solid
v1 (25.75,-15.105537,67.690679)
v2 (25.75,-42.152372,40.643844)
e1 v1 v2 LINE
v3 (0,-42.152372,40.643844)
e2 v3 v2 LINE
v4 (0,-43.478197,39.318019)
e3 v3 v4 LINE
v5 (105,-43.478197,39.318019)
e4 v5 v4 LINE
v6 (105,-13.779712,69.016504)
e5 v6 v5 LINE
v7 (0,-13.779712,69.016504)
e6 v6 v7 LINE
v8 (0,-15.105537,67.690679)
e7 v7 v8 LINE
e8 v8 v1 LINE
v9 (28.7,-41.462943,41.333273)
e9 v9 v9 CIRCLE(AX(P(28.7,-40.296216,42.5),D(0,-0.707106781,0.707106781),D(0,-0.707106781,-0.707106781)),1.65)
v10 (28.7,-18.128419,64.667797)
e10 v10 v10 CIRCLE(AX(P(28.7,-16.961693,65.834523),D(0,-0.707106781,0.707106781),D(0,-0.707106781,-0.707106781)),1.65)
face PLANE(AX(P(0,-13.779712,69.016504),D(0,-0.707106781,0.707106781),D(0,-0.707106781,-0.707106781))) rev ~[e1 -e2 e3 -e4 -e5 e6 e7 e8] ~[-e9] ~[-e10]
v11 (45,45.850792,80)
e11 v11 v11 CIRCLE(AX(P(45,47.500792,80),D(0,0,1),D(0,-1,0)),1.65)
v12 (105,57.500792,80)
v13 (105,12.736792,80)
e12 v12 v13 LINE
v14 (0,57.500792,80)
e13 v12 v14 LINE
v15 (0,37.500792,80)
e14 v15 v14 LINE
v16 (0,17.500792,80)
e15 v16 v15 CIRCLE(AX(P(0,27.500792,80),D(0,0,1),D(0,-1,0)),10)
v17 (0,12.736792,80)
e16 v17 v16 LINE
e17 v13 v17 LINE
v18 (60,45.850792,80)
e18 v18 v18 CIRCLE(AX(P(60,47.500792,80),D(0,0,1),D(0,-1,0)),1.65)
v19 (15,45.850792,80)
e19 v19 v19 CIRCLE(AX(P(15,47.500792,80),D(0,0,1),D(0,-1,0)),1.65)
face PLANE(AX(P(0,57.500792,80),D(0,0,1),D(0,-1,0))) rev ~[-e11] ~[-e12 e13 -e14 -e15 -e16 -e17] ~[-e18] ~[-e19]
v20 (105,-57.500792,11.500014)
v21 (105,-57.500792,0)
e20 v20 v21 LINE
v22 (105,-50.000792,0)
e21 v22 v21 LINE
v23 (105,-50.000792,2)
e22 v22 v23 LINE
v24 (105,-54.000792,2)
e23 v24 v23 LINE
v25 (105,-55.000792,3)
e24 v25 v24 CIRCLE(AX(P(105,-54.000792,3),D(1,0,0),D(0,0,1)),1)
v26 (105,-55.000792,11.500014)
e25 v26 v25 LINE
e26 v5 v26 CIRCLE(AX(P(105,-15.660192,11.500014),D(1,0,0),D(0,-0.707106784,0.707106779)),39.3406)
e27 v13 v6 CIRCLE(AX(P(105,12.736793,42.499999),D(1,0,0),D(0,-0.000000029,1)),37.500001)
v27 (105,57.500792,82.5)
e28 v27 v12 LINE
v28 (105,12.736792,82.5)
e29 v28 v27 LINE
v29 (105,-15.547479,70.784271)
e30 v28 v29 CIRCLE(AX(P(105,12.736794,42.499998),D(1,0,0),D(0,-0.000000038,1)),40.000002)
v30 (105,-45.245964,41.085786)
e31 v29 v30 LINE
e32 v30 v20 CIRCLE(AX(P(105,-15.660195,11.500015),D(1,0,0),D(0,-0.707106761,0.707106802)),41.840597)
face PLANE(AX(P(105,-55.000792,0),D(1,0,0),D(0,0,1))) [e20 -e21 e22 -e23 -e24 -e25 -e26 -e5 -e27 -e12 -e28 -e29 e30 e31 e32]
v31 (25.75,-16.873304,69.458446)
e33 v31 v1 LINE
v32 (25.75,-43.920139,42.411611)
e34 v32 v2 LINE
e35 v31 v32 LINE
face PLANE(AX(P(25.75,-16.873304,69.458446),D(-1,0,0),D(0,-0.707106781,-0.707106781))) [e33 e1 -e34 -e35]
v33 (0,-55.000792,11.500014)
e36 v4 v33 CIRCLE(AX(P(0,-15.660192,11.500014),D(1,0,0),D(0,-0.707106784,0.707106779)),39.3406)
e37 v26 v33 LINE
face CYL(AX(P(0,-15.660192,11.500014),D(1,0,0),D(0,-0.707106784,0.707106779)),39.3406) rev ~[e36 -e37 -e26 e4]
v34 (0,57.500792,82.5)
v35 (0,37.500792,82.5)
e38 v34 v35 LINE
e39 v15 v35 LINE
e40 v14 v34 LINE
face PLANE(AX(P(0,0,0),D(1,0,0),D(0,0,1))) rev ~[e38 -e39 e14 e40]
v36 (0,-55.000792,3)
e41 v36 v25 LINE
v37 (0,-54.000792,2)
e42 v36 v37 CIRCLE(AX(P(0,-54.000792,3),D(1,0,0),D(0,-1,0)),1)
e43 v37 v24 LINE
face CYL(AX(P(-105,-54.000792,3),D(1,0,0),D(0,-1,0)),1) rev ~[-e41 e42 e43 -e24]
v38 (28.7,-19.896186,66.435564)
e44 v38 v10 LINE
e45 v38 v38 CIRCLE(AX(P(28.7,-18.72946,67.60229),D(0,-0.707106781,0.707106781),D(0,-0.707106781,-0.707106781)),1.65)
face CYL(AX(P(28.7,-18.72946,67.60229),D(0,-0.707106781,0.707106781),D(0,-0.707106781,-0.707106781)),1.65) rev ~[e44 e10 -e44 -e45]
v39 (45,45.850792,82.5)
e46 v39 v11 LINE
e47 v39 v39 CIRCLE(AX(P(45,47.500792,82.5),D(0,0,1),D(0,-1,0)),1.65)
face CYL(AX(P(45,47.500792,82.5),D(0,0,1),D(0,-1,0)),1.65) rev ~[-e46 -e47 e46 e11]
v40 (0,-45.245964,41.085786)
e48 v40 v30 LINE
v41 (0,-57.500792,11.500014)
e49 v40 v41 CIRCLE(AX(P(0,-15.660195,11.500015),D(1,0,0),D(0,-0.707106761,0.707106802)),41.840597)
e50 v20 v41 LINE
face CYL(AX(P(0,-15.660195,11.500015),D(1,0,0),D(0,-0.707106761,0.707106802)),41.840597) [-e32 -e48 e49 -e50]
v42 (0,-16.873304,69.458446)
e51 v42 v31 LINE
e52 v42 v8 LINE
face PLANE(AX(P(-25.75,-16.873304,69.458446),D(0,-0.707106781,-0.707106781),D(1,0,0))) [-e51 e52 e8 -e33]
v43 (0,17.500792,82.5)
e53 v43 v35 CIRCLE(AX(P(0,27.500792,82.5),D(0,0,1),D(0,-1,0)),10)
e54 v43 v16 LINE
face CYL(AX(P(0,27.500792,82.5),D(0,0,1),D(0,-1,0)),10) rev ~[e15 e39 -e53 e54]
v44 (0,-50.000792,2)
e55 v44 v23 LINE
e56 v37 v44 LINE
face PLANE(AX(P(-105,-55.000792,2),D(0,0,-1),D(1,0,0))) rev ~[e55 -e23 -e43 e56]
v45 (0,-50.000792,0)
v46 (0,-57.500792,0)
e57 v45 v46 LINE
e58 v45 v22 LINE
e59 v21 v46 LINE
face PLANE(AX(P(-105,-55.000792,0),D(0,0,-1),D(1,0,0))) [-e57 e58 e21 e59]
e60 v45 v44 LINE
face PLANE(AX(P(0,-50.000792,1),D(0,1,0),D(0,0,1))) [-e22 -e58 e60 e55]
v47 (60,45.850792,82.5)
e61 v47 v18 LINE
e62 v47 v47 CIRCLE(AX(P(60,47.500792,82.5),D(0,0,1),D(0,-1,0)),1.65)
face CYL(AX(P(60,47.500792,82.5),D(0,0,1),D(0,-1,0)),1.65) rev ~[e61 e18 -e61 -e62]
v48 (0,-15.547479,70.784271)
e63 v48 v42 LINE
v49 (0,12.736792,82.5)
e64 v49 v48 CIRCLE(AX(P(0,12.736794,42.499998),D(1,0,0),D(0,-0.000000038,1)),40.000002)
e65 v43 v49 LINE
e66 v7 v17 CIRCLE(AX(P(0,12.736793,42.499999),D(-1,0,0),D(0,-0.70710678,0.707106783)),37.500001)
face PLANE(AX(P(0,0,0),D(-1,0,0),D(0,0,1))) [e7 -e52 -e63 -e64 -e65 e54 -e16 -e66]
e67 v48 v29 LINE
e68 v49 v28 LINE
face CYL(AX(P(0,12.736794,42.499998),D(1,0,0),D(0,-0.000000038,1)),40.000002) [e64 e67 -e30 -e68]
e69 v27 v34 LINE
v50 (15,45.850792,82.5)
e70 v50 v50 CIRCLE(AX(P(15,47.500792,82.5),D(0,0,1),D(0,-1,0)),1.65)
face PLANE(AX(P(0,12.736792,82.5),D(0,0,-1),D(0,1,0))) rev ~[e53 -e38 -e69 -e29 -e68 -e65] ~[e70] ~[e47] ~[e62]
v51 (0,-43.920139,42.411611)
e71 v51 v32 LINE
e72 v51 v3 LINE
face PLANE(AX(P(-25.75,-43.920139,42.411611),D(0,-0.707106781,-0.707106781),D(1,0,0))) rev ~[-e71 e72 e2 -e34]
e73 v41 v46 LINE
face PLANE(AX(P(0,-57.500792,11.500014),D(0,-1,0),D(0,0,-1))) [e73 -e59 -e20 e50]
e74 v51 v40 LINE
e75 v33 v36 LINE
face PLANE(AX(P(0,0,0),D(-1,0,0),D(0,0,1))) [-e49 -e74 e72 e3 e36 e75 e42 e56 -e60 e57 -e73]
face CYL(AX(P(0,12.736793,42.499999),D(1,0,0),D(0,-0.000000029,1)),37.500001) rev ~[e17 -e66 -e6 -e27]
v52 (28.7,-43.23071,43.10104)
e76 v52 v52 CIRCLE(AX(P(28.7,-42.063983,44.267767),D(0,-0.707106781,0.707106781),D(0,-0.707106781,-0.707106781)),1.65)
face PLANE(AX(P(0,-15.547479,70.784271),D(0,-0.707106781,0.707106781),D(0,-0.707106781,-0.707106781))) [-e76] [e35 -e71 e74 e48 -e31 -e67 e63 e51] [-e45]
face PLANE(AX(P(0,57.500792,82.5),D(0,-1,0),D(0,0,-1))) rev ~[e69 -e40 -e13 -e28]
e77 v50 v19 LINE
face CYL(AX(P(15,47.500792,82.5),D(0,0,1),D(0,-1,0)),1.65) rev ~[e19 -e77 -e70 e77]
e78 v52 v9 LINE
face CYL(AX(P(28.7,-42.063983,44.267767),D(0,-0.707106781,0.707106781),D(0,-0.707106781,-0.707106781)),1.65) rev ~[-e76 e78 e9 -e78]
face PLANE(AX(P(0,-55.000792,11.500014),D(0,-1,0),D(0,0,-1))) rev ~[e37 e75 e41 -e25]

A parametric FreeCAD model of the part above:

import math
import FreeCAD as App
import Part
import Sketcher
from FreeCAD import Vector
Q = App.Units.Quantity


def edges_at(feature, points):
    """Names of the edges that pass closest to the given points."""
    edges = feature.Shape.Edges
    near = lambda p: min(range(len(edges)), key=lambda i: edges[i].distToShape(Part.Vertex(*p))[0])
    return sorted({f"Edge{near(p) + 1}" for p in points})

doc = App.newDocument("Part")
body = doc.addObject("PartDesign::Body", "Body")

sketch1 = body.newObject("Sketcher::SketchObject", "Sketch")
sketch1.AttachmentSupport = (doc.getObject("YZ_Plane"), [""])
sketch1.MapMode = "FlatFace"
sketch1.addGeometry(Part.LineSegment(Vector(57.5, 82.5, 0), Vector(12.7, 82.5, 0)), False)
sketch1.addGeometry(Part.ArcOfCircle(Part.Circle(Vector(12.7, 42.5, 0), Vector(0, 0, 1), 40), math.radians(90), math.radians(135)), False)
sketch1.addGeometry(Part.LineSegment(Vector(-15.5, 70.8, 0), Vector(-45.2, 41.1, 0)), False)
sketch1.addGeometry(Part.ArcOfCircle(Part.Circle(Vector(-15.7, 11.5, 0), Vector(0, 0, 1), 41.8), math.radians(135), math.radians(180)), False)
sketch1.addGeometry(Part.LineSegment(Vector(-57.5, 11.5, 0), Vector(-57.5, 0, 0)), False)
sketch1.addGeometry(Part.LineSegment(Vector(-57.5, 0, 0), Vector(-55, 0, 0)), False)
sketch1.addGeometry(Part.LineSegment(Vector(-55, 0, 0), Vector(-55, 11.5, 0)), False)
sketch1.addGeometry(Part.ArcOfCircle(Part.Circle(Vector(-15.7, 11.5, 0), Vector(0, 0, 1), 39.3), math.radians(135), math.radians(180)), False)
sketch1.addGeometry(Part.LineSegment(Vector(-43.5, 39.3, 0), Vector(-13.8, 69, 0)), False)
sketch1.addGeometry(Part.ArcOfCircle(Part.Circle(Vector(12.7, 42.5, 0), Vector(0, 0, 1), 37.5), math.radians(90), math.radians(135)), False)
sketch1.addGeometry(Part.LineSegment(Vector(12.7, 80, 0), Vector(57.5, 80, 0)), False)
sketch1.addGeometry(Part.LineSegment(Vector(57.5, 80, 0), Vector(57.5, 82.5, 0)), False)
sketch1.addConstraint(Sketcher.Constraint("Tangent", 0, 2, 1, 1))
sketch1.addConstraint(Sketcher.Constraint("Tangent", 1, 2, 2, 1))
sketch1.addConstraint(Sketcher.Constraint("Tangent", 2, 2, 3, 1))
sketch1.addConstraint(Sketcher.Constraint("Tangent", 3, 2, 4, 1))
sketch1.addConstraint(Sketcher.Constraint("Coincident", 4, 2, 5, 1))
sketch1.addConstraint(Sketcher.Constraint("Coincident", 5, 2, 6, 1))
sketch1.addConstraint(Sketcher.Constraint("Tangent", 6, 2, 7, 2))
sketch1.addConstraint(Sketcher.Constraint("Tangent", 7, 1, 8, 1))
sketch1.addConstraint(Sketcher.Constraint("Tangent", 8, 2, 9, 2))
sketch1.addConstraint(Sketcher.Constraint("Tangent", 9, 1, 10, 1))
sketch1.addConstraint(Sketcher.Constraint("Coincident", 10, 2, 11, 1))
sketch1.addConstraint(Sketcher.Constraint("Coincident", 11, 2, 0, 1))
sketch1.addConstraint(Sketcher.Constraint("Horizontal", 0))
sketch1.addConstraint(Sketcher.Constraint("Vertical", 4))
sketch1.addConstraint(Sketcher.Constraint("Horizontal", 5))
sketch1.addConstraint(Sketcher.Constraint("Vertical", 6))
sketch1.addConstraint(Sketcher.Constraint("Horizontal", 10))
sketch1.addConstraint(Sketcher.Constraint("Vertical", 11))
sketch1.addConstraint(Sketcher.Constraint("Coincident", 7, 3, 3, 3))
sketch1.addConstraint(Sketcher.Constraint("Coincident", 9, 3, 1, 3))
sketch1.addConstraint(Sketcher.Constraint("PointOnObject", 4, 2, -1))
sketch1.addConstraint(Sketcher.Constraint("Parallel", 2, 8))
sketch1.addConstraint(Sketcher.Constraint("Radius", 9, 37.500001))
sketch1.addConstraint(Sketcher.Constraint("Angle", 2, Q("-135 deg")))
sketch1.addConstraint(Sketcher.Constraint("Distance", 2, 42.0))
sketch1.addConstraint(Sketcher.Constraint("DistanceX", 5, 1, 5, 2, 2.5))
sketch1.addConstraint(Sketcher.Constraint("DistanceY", -1, 1, 9, 1, 80.0))
sketch1.addConstraint(Sketcher.Constraint("Radius", 7, 39.3406))
sketch1.addConstraint(Sketcher.Constraint("DistanceX", 0, 2, 0, 1, 44.764))
sketch1.addConstraint(Sketcher.Constraint("DistanceX", 7, 3, -1, 1, 15.660192))
pad1 = body.newObject("PartDesign::Pad", "Pad")
pad1.Profile = sketch1
pad1.Type = "TwoLengths"
pad1.Length = 105
pad1.Length2 = 105

sketch2 = body.newObject("Sketcher::SketchObject", "Sketch001")
sketch2.Placement = App.Placement(Vector(0, -43.165875, 43.165875), App.Rotation(Vector(0, -0.707106781, -0.707106781), Vector(0.999999999, 0, 0), Vector(0, -0.707106781, 0.707106781), "ZXY"))
sketch2.addGeometry(Part.Circle(Vector(-34.6, 28.7, 0), Vector(0, 0, 1), 1.6), False)
sketch2.addGeometry(Part.Circle(Vector(-1.6, 28.7, 0), Vector(0, 0, 1), 1.6), False)
sketch2.addGeometry(Part.Circle(Vector(-34.6, -28.7, 0), Vector(0, 0, 1), 1.6), False)
sketch2.addGeometry(Part.Circle(Vector(-1.6, -28.7, 0), Vector(0, 0, 1), 1.6), False)
sketch2.addGeometry(Part.LineSegment(Vector(-37.2, 25.7, 0), Vector(-37.2, -25.7, 0)), False)
sketch2.addGeometry(Part.LineSegment(Vector(-37.2, -25.7, 0), Vector(1.1, -25.7, 0)), False)
sketch2.addGeometry(Part.LineSegment(Vector(1.1, -25.7, 0), Vector(1.1, 25.7, 0)), False)
sketch2.addGeometry(Part.LineSegment(Vector(1.1, 25.7, 0), Vector(-37.2, 25.7, 0)), False)
sketch2.addConstraint(Sketcher.Constraint("Coincident", 4, 2, 5, 1))
sketch2.addConstraint(Sketcher.Constraint("Coincident", 5, 2, 6, 1))
sketch2.addConstraint(Sketcher.Constraint("Coincident", 6, 2, 7, 1))
sketch2.addConstraint(Sketcher.Constraint("Coincident", 7, 2, 4, 1))
sketch2.addConstraint(Sketcher.Constraint("Vertical", 4))
sketch2.addConstraint(Sketcher.Constraint("Horizontal", 5))
sketch2.addConstraint(Sketcher.Constraint("Vertical", 6))
sketch2.addConstraint(Sketcher.Constraint("Horizontal", 7))
sketch2.addConstraint(Sketcher.Constraint("Equal", 0, 1))
sketch2.addConstraint(Sketcher.Constraint("Equal", 1, 2))
sketch2.addConstraint(Sketcher.Constraint("Equal", 2, 3))
sketch2.addConstraint(Sketcher.Constraint("Symmetric", 0, 3, 2, 3, -1))
sketch2.addConstraint(Sketcher.Constraint("Symmetric", 1, 3, 3, 3, -1))
sketch2.addConstraint(Sketcher.Constraint("Horizontal", 0, 3, 1, 3))
sketch2.addConstraint(Sketcher.Constraint("Diameter", 0, 3.3))
sketch2.addConstraint(Sketcher.Constraint("DistanceY", 4, 2, 4, 1, 51.5))
sketch2.addConstraint(Sketcher.Constraint("DistanceX", 0, 3, 1, 3, 33.0))
sketch2.addConstraint(Sketcher.Constraint("DistanceX", 5, 1, 5, 2, 38.25))
sketch2.addConstraint(Sketcher.Constraint("DistanceY", -1, 1, 0, 3, 28.7))
sketch2.addConstraint(Sketcher.Constraint("DistanceY", 4, 2, -1, 1, 25.75))
sketch2.addConstraint(Sketcher.Constraint("DistanceX", 4, 2, 2, 3, 2.625))
sketch2.addConstraint(Sketcher.Constraint("DistanceX", 0, 3, -1, 1, 34.55831))
pocket1 = body.newObject("PartDesign::Pocket", "Pocket")
pocket1.Profile = sketch2
pocket1.Type = "ThroughAll"

sketch3 = body.newObject("Sketcher::SketchObject", "Sketch002")
sketch3.AttachmentSupport = (doc.getObject("XY_Plane"), [""])
sketch3.MapMode = "FlatFace"
sketch3.AttachmentOffset = App.Placement(Vector(0, 0, 82.5), App.Rotation())
sketch3.addGeometry(Part.Circle(Vector(15, 47.5, 0), Vector(0, 0, 1), 1.6), False)
sketch3.addGeometry(Part.Circle(Vector(45, 47.5, 0), Vector(0, 0, 1), 1.6), False)
sketch3.addGeometry(Part.Circle(Vector(-15, 47.5, 0), Vector(0, 0, 1), 1.6), False)
sketch3.addGeometry(Part.Circle(Vector(-45, 47.5, 0), Vector(0, 0, 1), 1.6), False)
sketch3.addGeometry(Part.Circle(Vector(60, 47.5, 0), Vector(0, 0, 1), 1.6), False)
sketch3.addGeometry(Part.Circle(Vector(-60, 47.5, 0), Vector(0, 0, 1), 1.6), False)
sketch3.addConstraint(Sketcher.Constraint("Equal", 0, 1))
sketch3.addConstraint(Sketcher.Constraint("Equal", 1, 2))
sketch3.addConstraint(Sketcher.Constraint("Equal", 2, 3))
sketch3.addConstraint(Sketcher.Constraint("Equal", 3, 4))
sketch3.addConstraint(Sketcher.Constraint("Equal", 4, 5))
sketch3.addConstraint(Sketcher.Constraint("Symmetric", 0, 3, 2, 3, -2))
sketch3.addConstraint(Sketcher.Constraint("Symmetric", 1, 3, 3, 3, -2))
sketch3.addConstraint(Sketcher.Constraint("Symmetric", 4, 3, 5, 3, -2))
sketch3.addConstraint(Sketcher.Constraint("Horizontal", 0, 3, 1, 3))
sketch3.addConstraint(Sketcher.Constraint("Horizontal", 3, 3, 4, 3))
sketch3.addConstraint(Sketcher.Constraint("Diameter", 0, 3.3))
sketch3.addConstraint(Sketcher.Constraint("DistanceX", -1, 1, 0, 3, 15.0))
sketch3.addConstraint(Sketcher.Constraint("DistanceX", -1, 1, 1, 3, 45.0))
sketch3.addConstraint(Sketcher.Constraint("DistanceX", -1, 1, 4, 3, 60.0))
sketch3.addConstraint(Sketcher.Constraint("DistanceY", -1, 1, 0, 3, 47.500792))
pocket2 = body.newObject("PartDesign::Pocket", "Pocket001")
pocket2.Profile = sketch3
pocket2.Length = 5

sketch4 = body.newObject("Sketcher::SketchObject", "Sketch003")
sketch4.AttachmentSupport = (doc.getObject("XZ_Plane"), [""])
sketch4.MapMode = "FlatFace"
sketch4.AttachmentOffset = App.Placement(Vector(0, 0, 55.000792), App.Rotation())
sketch4.addGeometry(Part.LineSegment(Vector(105, 0, 0), Vector(-105, 0, 0)), False)
sketch4.addGeometry(Part.LineSegment(Vector(-105, 0, 0), Vector(-105, 2, 0)), False)
sketch4.addGeometry(Part.LineSegment(Vector(-105, 2, 0), Vector(105, 2, 0)), False)
sketch4.addGeometry(Part.LineSegment(Vector(105, 2, 0), Vector(105, 0, 0)), False)
sketch4.addConstraint(Sketcher.Constraint("Coincident", 0, 2, 1, 1))
sketch4.addConstraint(Sketcher.Constraint("Coincident", 1, 2, 2, 1))
sketch4.addConstraint(Sketcher.Constraint("Coincident", 2, 2, 3, 1))
sketch4.addConstraint(Sketcher.Constraint("Coincident", 3, 2, 0, 1))
sketch4.addConstraint(Sketcher.Constraint("Horizontal", 0))
sketch4.addConstraint(Sketcher.Constraint("Vertical", 1))
sketch4.addConstraint(Sketcher.Constraint("Horizontal", 2))
sketch4.addConstraint(Sketcher.Constraint("Vertical", 3))
sketch4.addConstraint(Sketcher.Constraint("Symmetric", 0, 2, 3, 2, -1, 1))
sketch4.addConstraint(Sketcher.Constraint("DistanceX", 0, 2, 0, 1, 210.0))
sketch4.addConstraint(Sketcher.Constraint("DistanceY", 1, 1, 1, 2, 2.0))
pad2 = body.newObject("PartDesign::Pad", "Pad001")
pad2.Profile = sketch4
pad2.Length = 5
pad2.Reversed = True
doc.recompute()

fillet = body.newObject("PartDesign::Fillet", "Fillet")
fillet.Base = (pad2, edges_at(pad2, [(0, -55.001, 2)]))
fillet.Radius = 1

sketch5 = body.newObject("Sketcher::SketchObject", "Sketch004")
sketch5.AttachmentSupport = (doc.getObject("XY_Plane"), [""])
sketch5.MapMode = "FlatFace"
sketch5.AttachmentOffset = App.Placement(Vector(0, 0, 82.5), App.Rotation())
sketch5.addGeometry(Part.Circle(Vector(0, 28, 0), Vector(0, 0, 1), 10), False)
sketch5.addConstraint(Sketcher.Constraint("PointOnObject", 0, 3, -2))
sketch5.addConstraint(Sketcher.Constraint("Diameter", 0, 20.0))
sketch5.addConstraint(Sketcher.Constraint("DistanceY", -1, 1, 0, 3, 27.500792))
pocket3 = body.newObject("PartDesign::Pocket", "Pocket002")
pocket3.Profile = sketch5
pocket3.Length = 5

sketch6 = body.newObject("Sketcher::SketchObject", "Sketch005")
sketch6.AttachmentSupport = (doc.getObject("XZ_Plane"), [""])
sketch6.MapMode = "FlatFace"
sketch6.addGeometry(Part.LineSegment(Vector(-110, 90, 0), Vector(-110, 0, 0)), False)
sketch6.addGeometry(Part.LineSegment(Vector(-110, 0, 0), Vector(0, 0, 0)), False)
sketch6.addGeometry(Part.LineSegment(Vector(0, 0, 0), Vector(0, 90, 0)), False)
sketch6.addGeometry(Part.LineSegment(Vector(0, 90, 0), Vector(-110, 90, 0)), False)
sketch6.addConstraint(Sketcher.Constraint("Coincident", 0, 2, 1, 1))
sketch6.addConstraint(Sketcher.Constraint("Coincident", 1, 2, 2, 1))
sketch6.addConstraint(Sketcher.Constraint("Coincident", 2, 2, 3, 1))
sketch6.addConstraint(Sketcher.Constraint("Coincident", 3, 2, 0, 1))
sketch6.addConstraint(Sketcher.Constraint("Vertical", 0))
sketch6.addConstraint(Sketcher.Constraint("Horizontal", 1))
sketch6.addConstraint(Sketcher.Constraint("Vertical", 2))
sketch6.addConstraint(Sketcher.Constraint("Horizontal", 3))
sketch6.addConstraint(Sketcher.Constraint("Coincident", 1, 2, -1, 1))
sketch6.addConstraint(Sketcher.Constraint("DistanceX", 1, 1, 1, 2, 110.0))
sketch6.addConstraint(Sketcher.Constraint("DistanceY", 0, 2, 0, 1, 90.0))
pocket4 = body.newObject("PartDesign::Pocket", "Pocket003")
pocket4.Profile = sketch6
pocket4.Type = "ThroughAll"
pocket4.Midplane = True

doc.recompute()
